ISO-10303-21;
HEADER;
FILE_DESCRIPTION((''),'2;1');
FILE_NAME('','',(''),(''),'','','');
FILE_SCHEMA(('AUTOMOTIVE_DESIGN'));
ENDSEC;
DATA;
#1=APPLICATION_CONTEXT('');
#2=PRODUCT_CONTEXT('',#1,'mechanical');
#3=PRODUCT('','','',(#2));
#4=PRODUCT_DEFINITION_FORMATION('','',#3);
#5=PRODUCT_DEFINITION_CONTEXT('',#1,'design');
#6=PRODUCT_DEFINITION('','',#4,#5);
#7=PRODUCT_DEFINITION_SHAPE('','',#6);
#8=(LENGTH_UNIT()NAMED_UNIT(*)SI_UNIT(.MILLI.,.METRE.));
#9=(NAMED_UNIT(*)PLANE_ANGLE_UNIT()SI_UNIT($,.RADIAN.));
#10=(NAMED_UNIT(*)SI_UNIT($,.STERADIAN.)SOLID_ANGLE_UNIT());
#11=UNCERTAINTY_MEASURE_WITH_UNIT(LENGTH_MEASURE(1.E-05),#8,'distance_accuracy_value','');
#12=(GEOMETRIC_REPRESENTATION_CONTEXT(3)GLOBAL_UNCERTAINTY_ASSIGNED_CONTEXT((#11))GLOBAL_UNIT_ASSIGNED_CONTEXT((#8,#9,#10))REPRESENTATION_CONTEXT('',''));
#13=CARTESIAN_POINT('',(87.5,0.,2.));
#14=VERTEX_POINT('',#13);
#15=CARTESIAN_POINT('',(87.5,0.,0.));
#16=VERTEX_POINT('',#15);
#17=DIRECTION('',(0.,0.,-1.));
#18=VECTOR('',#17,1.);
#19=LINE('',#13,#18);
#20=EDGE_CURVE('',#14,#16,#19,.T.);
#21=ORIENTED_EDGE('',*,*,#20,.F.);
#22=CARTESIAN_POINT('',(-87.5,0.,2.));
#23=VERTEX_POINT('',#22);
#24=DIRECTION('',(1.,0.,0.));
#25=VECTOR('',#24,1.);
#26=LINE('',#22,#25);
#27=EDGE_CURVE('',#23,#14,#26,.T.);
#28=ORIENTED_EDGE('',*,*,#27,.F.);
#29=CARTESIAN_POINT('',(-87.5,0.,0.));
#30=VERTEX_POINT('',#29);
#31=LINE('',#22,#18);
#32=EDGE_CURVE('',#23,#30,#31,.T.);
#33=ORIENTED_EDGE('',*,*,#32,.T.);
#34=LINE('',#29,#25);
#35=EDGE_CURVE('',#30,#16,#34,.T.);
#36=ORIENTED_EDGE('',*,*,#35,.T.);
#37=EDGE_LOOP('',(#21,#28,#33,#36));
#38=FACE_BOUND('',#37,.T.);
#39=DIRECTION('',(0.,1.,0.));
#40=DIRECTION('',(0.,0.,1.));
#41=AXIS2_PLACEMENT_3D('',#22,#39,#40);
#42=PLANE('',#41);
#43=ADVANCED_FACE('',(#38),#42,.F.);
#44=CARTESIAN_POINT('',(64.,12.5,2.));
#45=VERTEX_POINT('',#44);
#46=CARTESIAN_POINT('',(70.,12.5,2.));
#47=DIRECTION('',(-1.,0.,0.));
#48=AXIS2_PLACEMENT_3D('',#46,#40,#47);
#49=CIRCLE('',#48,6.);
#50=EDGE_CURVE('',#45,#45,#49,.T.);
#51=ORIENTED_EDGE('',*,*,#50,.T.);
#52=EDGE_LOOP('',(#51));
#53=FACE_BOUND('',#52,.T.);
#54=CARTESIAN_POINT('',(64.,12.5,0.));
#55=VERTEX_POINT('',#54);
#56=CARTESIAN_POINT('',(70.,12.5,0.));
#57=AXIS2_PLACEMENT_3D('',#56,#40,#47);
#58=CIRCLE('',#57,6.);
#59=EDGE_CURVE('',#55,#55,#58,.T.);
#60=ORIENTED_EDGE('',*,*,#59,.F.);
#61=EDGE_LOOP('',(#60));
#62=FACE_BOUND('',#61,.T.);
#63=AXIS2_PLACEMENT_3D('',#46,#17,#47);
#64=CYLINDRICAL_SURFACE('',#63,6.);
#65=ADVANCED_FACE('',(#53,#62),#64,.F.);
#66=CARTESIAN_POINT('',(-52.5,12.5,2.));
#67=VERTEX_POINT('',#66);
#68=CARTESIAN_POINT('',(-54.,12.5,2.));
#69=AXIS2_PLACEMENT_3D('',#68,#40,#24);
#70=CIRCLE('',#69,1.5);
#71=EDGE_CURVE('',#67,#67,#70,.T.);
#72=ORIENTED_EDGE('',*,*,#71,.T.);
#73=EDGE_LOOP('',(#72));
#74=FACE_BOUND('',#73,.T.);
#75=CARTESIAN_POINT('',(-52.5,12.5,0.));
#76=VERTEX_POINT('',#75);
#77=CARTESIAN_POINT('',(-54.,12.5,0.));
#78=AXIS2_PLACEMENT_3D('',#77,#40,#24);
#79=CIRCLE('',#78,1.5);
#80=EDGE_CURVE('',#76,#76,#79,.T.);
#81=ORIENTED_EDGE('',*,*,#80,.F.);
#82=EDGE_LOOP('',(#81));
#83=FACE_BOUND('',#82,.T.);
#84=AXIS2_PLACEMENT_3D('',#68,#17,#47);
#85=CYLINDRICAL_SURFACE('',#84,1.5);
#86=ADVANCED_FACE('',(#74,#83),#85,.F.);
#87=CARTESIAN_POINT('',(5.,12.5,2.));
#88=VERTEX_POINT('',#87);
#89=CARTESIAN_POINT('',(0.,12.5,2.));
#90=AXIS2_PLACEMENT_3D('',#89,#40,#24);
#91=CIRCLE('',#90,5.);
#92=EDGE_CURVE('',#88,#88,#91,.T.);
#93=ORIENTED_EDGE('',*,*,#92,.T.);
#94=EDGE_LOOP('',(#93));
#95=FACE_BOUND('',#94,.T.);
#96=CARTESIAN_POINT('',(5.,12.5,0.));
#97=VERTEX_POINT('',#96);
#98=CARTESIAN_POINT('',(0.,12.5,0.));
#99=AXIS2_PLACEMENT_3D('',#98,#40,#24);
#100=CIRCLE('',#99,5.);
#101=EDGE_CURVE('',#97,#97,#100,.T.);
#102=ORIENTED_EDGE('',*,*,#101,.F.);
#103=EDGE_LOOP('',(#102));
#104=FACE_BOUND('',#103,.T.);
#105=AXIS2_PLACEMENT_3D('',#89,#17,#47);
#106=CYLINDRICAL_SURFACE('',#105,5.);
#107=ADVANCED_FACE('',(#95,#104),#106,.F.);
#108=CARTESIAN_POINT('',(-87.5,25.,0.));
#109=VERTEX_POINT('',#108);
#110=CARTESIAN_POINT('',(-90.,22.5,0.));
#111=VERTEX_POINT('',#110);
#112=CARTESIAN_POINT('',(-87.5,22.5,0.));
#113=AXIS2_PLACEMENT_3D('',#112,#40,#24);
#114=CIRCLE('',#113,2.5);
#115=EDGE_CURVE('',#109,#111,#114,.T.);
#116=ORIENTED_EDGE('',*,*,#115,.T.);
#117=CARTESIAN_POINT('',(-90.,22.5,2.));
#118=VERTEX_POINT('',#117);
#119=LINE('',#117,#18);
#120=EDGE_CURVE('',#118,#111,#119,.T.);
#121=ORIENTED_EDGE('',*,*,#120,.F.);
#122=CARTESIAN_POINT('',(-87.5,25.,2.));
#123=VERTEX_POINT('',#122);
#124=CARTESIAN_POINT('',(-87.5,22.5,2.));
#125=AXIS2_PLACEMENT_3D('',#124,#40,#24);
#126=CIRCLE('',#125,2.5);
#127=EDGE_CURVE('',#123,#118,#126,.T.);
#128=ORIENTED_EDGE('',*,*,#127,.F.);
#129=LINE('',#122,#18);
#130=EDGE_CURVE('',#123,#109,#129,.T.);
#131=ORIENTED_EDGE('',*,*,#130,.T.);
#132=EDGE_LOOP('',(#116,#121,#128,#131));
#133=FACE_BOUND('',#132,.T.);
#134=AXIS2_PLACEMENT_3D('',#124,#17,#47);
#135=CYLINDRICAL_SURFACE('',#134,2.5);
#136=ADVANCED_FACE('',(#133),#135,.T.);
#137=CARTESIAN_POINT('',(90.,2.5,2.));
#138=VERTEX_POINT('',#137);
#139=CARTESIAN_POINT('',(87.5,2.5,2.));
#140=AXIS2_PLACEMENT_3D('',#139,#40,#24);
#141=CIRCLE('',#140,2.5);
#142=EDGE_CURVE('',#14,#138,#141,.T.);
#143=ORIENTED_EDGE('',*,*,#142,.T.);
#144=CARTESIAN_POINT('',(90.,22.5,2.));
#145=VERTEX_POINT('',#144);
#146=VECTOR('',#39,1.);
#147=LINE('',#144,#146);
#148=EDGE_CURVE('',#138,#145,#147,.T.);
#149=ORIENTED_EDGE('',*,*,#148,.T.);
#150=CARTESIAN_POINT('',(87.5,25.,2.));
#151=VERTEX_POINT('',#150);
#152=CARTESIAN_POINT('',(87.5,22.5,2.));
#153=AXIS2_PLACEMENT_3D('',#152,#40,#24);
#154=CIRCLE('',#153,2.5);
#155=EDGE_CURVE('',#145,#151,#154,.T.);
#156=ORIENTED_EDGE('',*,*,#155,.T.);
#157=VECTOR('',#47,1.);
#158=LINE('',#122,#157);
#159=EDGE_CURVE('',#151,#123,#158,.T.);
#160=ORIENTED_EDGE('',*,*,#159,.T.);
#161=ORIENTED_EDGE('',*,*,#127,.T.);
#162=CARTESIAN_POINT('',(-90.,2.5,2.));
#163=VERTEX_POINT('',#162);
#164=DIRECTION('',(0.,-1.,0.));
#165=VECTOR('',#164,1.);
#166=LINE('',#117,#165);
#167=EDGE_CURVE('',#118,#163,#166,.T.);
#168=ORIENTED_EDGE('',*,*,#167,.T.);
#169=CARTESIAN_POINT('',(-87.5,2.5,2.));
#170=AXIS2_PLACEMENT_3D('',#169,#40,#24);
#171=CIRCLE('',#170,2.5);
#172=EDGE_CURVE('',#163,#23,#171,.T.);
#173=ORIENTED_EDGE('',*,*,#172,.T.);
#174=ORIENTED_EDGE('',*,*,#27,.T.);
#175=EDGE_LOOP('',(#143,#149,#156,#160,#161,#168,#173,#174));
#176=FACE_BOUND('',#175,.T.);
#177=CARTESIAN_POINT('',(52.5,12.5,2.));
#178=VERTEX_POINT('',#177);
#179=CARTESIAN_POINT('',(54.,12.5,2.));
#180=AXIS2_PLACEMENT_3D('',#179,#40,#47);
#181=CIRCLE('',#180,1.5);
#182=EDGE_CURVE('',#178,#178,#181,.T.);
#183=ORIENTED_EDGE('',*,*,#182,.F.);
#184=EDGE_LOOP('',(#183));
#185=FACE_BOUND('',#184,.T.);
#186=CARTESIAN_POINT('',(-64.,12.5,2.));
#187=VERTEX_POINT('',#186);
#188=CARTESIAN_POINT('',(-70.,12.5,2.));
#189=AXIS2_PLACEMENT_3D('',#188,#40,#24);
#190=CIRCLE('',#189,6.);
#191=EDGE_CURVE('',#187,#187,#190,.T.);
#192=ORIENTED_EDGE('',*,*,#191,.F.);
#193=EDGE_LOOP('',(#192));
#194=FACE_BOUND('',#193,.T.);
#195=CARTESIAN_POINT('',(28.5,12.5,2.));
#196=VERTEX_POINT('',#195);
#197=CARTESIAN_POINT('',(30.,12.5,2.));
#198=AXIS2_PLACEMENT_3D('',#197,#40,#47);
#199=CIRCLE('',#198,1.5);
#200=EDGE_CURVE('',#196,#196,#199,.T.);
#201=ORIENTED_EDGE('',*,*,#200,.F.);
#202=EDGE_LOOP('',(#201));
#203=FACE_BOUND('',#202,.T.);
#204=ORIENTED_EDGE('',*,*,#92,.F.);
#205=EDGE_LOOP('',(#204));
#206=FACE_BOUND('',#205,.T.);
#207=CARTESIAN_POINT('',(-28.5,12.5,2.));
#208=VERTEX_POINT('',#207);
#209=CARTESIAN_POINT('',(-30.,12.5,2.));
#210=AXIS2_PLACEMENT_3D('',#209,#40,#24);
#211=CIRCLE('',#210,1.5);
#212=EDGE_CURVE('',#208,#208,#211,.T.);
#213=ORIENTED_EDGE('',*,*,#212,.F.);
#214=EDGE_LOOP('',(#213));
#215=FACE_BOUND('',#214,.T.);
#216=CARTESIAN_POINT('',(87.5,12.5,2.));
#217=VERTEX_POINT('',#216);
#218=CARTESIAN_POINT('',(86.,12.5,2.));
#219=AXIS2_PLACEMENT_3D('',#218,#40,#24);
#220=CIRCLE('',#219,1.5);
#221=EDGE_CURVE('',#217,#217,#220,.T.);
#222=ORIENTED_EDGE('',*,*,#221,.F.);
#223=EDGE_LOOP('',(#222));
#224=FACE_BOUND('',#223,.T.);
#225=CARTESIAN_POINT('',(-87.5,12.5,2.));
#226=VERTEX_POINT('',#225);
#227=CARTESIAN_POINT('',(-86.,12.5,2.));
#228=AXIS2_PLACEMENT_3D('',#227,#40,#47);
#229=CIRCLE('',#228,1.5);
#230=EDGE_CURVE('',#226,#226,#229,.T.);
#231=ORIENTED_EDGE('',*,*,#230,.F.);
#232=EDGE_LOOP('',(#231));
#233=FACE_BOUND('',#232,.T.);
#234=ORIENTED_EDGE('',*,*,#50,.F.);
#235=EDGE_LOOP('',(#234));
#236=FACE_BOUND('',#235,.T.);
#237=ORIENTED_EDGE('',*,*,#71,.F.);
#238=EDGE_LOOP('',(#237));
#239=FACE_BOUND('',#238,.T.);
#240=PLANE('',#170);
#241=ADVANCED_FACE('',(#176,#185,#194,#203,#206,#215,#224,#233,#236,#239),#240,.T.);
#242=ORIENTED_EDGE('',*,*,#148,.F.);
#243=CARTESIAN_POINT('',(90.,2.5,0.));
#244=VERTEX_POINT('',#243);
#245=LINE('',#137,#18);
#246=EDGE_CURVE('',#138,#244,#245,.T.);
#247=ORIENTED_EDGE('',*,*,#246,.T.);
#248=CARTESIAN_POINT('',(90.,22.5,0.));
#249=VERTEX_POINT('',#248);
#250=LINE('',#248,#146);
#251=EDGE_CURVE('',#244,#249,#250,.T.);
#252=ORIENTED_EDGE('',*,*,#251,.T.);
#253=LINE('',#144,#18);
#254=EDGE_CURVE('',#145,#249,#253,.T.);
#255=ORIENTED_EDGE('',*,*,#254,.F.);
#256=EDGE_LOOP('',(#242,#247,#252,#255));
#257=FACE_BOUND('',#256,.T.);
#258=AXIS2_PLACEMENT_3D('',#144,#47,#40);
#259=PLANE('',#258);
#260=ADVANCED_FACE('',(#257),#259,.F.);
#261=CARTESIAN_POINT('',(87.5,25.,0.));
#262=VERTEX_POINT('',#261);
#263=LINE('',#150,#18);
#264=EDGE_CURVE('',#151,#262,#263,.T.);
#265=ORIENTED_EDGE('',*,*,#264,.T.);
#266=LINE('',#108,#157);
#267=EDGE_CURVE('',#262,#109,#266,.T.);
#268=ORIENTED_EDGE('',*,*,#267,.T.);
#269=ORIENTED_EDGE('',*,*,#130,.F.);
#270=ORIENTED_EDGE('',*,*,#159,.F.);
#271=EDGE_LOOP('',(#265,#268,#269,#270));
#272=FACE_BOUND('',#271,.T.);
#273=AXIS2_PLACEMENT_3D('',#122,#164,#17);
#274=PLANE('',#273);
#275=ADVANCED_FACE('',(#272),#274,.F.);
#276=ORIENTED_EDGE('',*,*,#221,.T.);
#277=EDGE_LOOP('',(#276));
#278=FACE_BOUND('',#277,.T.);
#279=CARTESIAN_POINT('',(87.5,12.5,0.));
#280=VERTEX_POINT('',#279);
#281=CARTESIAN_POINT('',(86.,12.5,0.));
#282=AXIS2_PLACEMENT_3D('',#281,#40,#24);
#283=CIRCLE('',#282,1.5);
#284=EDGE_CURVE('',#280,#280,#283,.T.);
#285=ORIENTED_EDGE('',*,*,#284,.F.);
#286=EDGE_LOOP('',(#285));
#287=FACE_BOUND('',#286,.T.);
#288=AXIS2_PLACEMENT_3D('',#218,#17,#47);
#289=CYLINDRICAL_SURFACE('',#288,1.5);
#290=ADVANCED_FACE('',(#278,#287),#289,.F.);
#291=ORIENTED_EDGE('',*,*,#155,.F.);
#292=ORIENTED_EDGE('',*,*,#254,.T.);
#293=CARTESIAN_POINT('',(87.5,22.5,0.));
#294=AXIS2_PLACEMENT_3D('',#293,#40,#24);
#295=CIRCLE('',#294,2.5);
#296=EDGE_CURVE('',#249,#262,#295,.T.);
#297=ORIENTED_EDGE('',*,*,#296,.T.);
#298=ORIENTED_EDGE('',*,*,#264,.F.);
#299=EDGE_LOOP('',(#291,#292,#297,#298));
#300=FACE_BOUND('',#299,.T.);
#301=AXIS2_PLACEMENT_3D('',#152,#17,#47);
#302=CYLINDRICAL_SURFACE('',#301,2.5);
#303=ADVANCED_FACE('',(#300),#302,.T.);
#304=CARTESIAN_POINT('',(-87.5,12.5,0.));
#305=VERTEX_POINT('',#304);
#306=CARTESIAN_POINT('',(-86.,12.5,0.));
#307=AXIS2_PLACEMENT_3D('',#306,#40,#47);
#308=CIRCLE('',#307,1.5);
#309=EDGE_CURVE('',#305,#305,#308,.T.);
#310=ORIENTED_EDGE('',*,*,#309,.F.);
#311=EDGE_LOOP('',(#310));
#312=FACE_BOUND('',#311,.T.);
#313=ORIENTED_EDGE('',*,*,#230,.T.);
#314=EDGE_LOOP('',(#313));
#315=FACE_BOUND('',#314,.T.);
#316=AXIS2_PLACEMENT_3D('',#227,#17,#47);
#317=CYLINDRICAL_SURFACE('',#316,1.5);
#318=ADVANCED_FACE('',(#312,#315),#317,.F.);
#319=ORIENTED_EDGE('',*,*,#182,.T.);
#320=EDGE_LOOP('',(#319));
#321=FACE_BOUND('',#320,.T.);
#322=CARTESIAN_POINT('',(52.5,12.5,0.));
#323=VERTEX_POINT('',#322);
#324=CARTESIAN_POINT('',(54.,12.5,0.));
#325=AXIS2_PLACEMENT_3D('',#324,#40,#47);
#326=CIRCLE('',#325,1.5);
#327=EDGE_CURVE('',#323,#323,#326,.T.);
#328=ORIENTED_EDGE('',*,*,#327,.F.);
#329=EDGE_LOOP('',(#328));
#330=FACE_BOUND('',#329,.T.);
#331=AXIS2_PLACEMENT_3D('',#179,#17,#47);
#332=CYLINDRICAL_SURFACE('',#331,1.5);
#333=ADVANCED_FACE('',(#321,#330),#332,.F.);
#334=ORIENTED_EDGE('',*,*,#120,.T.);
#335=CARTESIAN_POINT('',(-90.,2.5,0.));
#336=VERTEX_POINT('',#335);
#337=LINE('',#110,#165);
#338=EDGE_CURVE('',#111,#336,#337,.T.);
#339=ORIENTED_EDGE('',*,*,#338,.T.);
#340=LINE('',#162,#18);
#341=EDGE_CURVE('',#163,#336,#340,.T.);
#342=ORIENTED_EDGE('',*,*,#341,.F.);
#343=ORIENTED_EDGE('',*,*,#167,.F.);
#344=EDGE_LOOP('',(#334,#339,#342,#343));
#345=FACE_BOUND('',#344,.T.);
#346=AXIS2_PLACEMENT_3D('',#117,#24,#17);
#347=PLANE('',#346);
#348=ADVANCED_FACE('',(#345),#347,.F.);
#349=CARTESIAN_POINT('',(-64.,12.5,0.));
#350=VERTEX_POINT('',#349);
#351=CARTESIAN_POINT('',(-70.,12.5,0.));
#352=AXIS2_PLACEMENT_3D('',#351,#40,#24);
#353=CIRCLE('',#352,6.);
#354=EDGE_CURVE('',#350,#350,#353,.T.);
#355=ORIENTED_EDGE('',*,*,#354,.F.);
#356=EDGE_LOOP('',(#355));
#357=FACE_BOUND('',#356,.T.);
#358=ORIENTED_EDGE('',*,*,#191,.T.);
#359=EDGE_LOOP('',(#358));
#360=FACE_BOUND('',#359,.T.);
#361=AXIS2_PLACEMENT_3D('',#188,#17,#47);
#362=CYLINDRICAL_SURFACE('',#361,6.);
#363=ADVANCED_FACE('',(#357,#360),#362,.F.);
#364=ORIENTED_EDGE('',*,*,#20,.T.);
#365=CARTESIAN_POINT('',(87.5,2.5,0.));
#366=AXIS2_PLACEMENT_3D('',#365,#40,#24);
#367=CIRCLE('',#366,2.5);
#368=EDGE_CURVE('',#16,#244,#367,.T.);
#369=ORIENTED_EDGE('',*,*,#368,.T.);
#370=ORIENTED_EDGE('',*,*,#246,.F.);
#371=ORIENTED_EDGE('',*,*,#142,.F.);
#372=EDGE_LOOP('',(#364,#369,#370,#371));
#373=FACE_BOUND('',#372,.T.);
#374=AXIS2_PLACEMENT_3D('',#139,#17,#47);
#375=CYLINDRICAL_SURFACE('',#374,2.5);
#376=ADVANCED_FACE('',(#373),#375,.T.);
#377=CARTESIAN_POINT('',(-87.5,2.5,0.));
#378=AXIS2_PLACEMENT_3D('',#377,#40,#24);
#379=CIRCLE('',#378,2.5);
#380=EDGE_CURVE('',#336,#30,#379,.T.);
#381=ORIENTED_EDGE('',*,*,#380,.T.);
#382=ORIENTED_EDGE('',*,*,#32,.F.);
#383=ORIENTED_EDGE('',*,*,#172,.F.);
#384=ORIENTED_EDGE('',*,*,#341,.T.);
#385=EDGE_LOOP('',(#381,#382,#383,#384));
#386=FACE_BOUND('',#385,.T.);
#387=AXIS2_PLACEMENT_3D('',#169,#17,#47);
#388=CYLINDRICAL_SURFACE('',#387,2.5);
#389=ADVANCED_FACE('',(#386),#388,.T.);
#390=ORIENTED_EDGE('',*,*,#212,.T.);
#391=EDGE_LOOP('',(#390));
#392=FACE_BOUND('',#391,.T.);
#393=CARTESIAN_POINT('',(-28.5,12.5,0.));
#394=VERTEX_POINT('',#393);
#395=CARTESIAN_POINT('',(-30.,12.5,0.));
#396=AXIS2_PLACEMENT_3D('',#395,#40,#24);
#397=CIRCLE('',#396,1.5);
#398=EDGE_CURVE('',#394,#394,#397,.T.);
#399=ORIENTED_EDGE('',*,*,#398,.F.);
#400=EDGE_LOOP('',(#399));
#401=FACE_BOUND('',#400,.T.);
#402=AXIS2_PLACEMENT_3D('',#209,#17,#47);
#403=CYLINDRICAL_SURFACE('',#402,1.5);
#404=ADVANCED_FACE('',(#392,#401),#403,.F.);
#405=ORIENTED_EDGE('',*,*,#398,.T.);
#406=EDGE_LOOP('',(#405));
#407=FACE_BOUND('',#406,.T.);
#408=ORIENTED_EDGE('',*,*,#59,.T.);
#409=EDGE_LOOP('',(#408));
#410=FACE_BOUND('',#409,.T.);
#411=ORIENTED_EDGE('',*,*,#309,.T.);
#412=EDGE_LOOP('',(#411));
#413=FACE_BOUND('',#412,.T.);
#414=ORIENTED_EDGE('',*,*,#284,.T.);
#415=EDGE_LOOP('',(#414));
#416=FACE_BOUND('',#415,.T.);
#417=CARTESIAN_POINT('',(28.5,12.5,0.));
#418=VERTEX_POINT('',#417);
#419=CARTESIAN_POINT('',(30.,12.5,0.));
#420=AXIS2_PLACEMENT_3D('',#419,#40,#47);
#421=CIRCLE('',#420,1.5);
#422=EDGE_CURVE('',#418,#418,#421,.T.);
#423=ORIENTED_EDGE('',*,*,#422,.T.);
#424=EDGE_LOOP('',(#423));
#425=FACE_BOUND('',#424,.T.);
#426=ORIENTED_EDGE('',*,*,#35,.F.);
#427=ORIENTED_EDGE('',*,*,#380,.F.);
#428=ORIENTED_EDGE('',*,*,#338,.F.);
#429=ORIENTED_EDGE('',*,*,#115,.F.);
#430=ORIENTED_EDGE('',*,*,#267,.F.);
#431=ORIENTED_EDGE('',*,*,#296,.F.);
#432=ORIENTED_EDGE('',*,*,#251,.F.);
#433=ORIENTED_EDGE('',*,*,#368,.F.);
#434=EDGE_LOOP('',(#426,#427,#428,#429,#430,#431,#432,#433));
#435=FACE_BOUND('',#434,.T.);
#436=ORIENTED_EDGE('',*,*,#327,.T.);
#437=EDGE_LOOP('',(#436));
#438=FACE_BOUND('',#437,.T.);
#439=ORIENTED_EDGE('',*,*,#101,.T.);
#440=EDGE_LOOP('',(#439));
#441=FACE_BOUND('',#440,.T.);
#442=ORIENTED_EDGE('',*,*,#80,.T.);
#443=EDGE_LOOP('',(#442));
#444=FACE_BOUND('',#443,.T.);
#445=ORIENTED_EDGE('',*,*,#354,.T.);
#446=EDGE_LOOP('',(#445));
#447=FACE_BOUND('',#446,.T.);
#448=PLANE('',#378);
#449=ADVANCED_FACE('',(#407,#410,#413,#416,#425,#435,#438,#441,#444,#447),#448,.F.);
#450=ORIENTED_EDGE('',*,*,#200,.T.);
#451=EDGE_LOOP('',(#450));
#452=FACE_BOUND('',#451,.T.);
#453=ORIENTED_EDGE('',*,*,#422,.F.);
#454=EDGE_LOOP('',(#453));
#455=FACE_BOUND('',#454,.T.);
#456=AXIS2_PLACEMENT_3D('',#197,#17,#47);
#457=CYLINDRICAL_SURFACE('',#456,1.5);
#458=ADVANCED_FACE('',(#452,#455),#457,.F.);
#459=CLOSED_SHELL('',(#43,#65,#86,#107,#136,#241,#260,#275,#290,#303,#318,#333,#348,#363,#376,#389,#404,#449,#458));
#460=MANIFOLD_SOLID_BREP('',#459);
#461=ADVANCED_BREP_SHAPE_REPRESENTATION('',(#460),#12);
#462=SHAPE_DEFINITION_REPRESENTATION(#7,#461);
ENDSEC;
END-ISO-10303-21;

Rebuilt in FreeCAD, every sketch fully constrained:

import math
import FreeCAD as App
import Part
import Sketcher
from FreeCAD import Vector
Q = App.Units.Quantity

doc = App.newDocument("Part")
body = doc.addObject("PartDesign::Body", "Body")

# Sketch on XY plane
sketch1 = doc.addObject("Sketcher::SketchObject", "Sketch")
body.addObject(sketch1)
sketch1.AttachmentSupport = (doc.XY_Plane, [""])
sketch1.MapMode = "FlatFace"
sketch1.addGeometry([
    Part.LineSegment(Vector(87.5, 25, 0), Vector(-87.5, 25, 0)),  # 0
    Part.ArcOfCircle(Part.Circle(Vector(-87.5, 22.5, 0), Vector(0, 0, 1), 2.5), math.radians(90), math.radians(180)),  # 1
    Part.LineSegment(Vector(-90, 22.5, 0), Vector(-90, 2.5, 0)),  # 2
    Part.ArcOfCircle(Part.Circle(Vector(-87.5, 2.5, 0), Vector(0, 0, 1), 2.5), math.radians(180), math.radians(270)),  # 3
    Part.LineSegment(Vector(-87.5, 0, 0), Vector(87.5, 0, 0)),  # 4
    Part.ArcOfCircle(Part.Circle(Vector(87.5, 2.5, 0), Vector(0, 0, 1), 2.5), math.radians(-90), math.radians(0)),  # 5
    Part.LineSegment(Vector(90, 2.5, 0), Vector(90, 22.5, 0)),  # 6
    Part.ArcOfCircle(Part.Circle(Vector(87.5, 22.5, 0), Vector(0, 0, 1), 2.5), math.radians(0), math.radians(90)),  # 7
    Part.Circle(Vector(86, 12.5, 0), Vector(0, 0, 1), 1.5),  # 8
    Part.Circle(Vector(70, 12.5, 0), Vector(0, 0, 1), 6),  # 9
    Part.Circle(Vector(54, 12.5, 0), Vector(0, 0, 1), 1.5),  # 10
    Part.Circle(Vector(30, 12.5, 0), Vector(0, 0, 1), 1.5),  # 11
    Part.Circle(Vector(0, 12.5, 0), Vector(0, 0, 1), 5),  # 12
    Part.Circle(Vector(-30, 12.5, 0), Vector(0, 0, 1), 1.5),  # 13
    Part.Circle(Vector(-54, 12.5, 0), Vector(0, 0, 1), 1.5),  # 14
    Part.Circle(Vector(-70, 12.5, 0), Vector(0, 0, 1), 6),  # 15
    Part.Circle(Vector(-86, 12.5, 0), Vector(0, 0, 1), 1.5),  # 16
], False)
sketch1.addConstraint([
    Sketcher.Constraint("Tangent", 0, 2, 1, 1),
    Sketcher.Constraint("Tangent", 1, 2, 2, 1),
    Sketcher.Constraint("Tangent", 2, 2, 3, 1),
    Sketcher.Constraint("Tangent", 3, 2, 4, 1),
    Sketcher.Constraint("Tangent", 4, 2, 5, 1),
    Sketcher.Constraint("Tangent", 5, 2, 6, 1),
    Sketcher.Constraint("Tangent", 6, 2, 7, 1),
    Sketcher.Constraint("Tangent", 7, 2, 0, 1),
    Sketcher.Constraint("Horizontal", 0),
    Sketcher.Constraint("Vertical", 2),
    Sketcher.Constraint("Horizontal", 4),
    Sketcher.Constraint("Vertical", 6),
    Sketcher.Constraint("Equal", 1, 3),
    Sketcher.Constraint("Equal", 3, 5),
    Sketcher.Constraint("Equal", 5, 7),
    Sketcher.Constraint("Equal", 8, 10),
    Sketcher.Constraint("Equal", 10, 11),
    Sketcher.Constraint("Equal", 11, 13),
    Sketcher.Constraint("Equal", 13, 14),
    Sketcher.Constraint("Equal", 9, 15),
    Sketcher.Constraint("Equal", 14, 16),
    Sketcher.Constraint("Symmetric", 3, 2, 4, 2, -1, 1),
    Sketcher.Constraint("Symmetric", 11, 3, 13, 3, -2),
    Sketcher.Constraint("Symmetric", 10, 3, 14, 3, -2),
    Sketcher.Constraint("Symmetric", 9, 3, 15, 3, -2),
    Sketcher.Constraint("Symmetric", 8, 3, 16, 3, -2),
    Sketcher.Constraint("PointOnObject", 12, 3, -2),
    Sketcher.Constraint("Horizontal", 8, 3, 9, 3),
    Sketcher.Constraint("Horizontal", 9, 3, 10, 3),
    Sketcher.Constraint("Horizontal", 10, 3, 11, 3),
    Sketcher.Constraint("Horizontal", 11, 3, 12, 3),
    Sketcher.Constraint("Diameter", 8, Q("3 mm")),
    Sketcher.Constraint("Diameter", 9, Q("12 mm")),
    Sketcher.Constraint("Diameter", 12, Q("10 mm")),
    Sketcher.Constraint("Radius", 1, Q("2.5 mm")),
    Sketcher.Constraint("DistanceX", 0, 2, 0, 1, Q("175 mm")),
    Sketcher.Constraint("DistanceY", 2, 2, 2, 1, Q("20 mm")),
    Sketcher.Constraint("DistanceX", -1, 1, 8, 3, Q("86 mm")),
    Sketcher.Constraint("DistanceX", -1, 1, 9, 3, Q("70 mm")),
    Sketcher.Constraint("DistanceX", -1, 1, 10, 3, Q("54 mm")),
    Sketcher.Constraint("DistanceX", -1, 1, 11, 3, Q("30 mm")),
    Sketcher.Constraint("DistanceY", 5, 3, 8, 3, Q("10 mm")),
])
pad1 = doc.addObject("PartDesign::Pad", "Pad")
body.addObject(pad1)
pad1.Profile = sketch1
pad1.Length = 2

doc.recompute()
